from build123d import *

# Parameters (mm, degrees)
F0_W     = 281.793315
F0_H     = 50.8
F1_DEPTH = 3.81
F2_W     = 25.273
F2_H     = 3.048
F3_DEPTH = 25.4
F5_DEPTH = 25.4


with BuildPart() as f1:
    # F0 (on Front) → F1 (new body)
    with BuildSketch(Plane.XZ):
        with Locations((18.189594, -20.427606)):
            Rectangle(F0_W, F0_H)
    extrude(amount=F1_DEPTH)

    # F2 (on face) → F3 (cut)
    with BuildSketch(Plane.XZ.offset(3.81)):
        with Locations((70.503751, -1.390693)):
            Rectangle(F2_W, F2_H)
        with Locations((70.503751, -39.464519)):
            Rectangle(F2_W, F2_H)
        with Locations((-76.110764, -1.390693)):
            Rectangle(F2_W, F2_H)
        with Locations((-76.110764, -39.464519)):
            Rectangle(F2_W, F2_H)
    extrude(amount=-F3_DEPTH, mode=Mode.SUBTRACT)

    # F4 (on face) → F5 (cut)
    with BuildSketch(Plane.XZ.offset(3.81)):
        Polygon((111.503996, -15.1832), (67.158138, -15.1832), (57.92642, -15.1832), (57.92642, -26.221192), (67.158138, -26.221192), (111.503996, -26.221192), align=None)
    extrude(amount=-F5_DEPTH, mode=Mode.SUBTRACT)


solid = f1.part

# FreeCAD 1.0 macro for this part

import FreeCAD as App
import Part
import Sketcher
from FreeCAD import Vector
Q = App.Units.Quantity


def add_polygon(sketch, points):
    """Adds a closed chain of lines whose ends are joined by coincident constraints."""
    first, n = sketch.GeometryCount, len(points)
    for a, b in zip(points, points[1:] + points[:1]):
        sketch.addGeometry(Part.LineSegment(App.Vector(*a, 0), App.Vector(*b, 0)), False)
    for i in range(n):
        sketch.addConstraint(Sketcher.Constraint("Coincident", first + i, 2, first + (i + 1) % n, 1))

doc = App.newDocument("Part")
params = doc.addObject("Spreadsheet::Sheet", "Params")
for row, (alias, value) in enumerate([
    ("sketch1_height", "2 in"),
    ("pad1_length", "0.15 in"),
    ("sketch2_height", "0.12 in"),
    ("sketch2_width", "0.995 in"),
    ("pocket1_length", "1 in"),
    ("pocket2_length", "1 in"),
], start=1):
    params.set(f"A{row}", alias)
    params.set(f"B{row}", "=" + value)
    params.setAlias(f"B{row}", alias)

body = doc.addObject("PartDesign::Body", "Body")

# Sketch on XZ plane
sketch1 = doc.addObject("Sketcher::SketchObject", "Sketch")
body.addObject(sketch1)
sketch1.AttachmentSupport = (doc.XZ_Plane, [""])
sketch1.MapMode = "FlatFace"
add_polygon(sketch1, [(-123, 5), (-123, -46), (159, -46), (159, 5)])  # lines 0-3
sketch1.addConstraint([
    Sketcher.Constraint("Vertical", 0),
    Sketcher.Constraint("Horizontal", 1),
    Sketcher.Constraint("Vertical", 2),
    Sketcher.Constraint("Horizontal", 3),
    Sketcher.Constraint("DistanceY", 0, 2, 0, 1, Q("2 in")),
    Sketcher.Constraint("DistanceX", 1, 1, 1, 2, Q("281.793315 mm")),
    Sketcher.Constraint("DistanceX", -1, 1, 1, 2, Q("159.086252 mm")),
    Sketcher.Constraint("DistanceY", 0, 2, -1, 1, Q("45.827606 mm")),
])
sketch1.setExpression("Constraints[8]", "Params.sketch1_height")
pad1 = doc.addObject("PartDesign::Pad", "Pad")
body.addObject(pad1)
pad1.Profile = sketch1
pad1.setExpression("Length", "Params.pad1_length")

# Sketch on XZ plane
sketch2 = doc.addObject("Sketcher::SketchObject", "Sketch001")
body.addObject(sketch2)
sketch2.AttachmentSupport = (doc.XZ_Plane, [""])
sketch2.MapMode = "FlatFace"
sketch2.AttachmentOffset = App.Placement(Vector(0, 0, 0.15 * 25.4), App.Rotation())
add_polygon(sketch2, [(57.9, 0.1), (57.9, -2.9), (83.1, -2.9), (83.1, 0.1)])  # lines 0-3
add_polygon(sketch2, [(57.9, -37.9), (57.9, -41), (83.1, -41), (83.1, -37.9)])  # lines 4-7
add_polygon(sketch2, [(-88.7, 0.1), (-88.7, -2.9), (-63.5, -2.9), (-63.5, 0.1)])  # lines 8-11
add_polygon(sketch2, [(-88.7, -37.9), (-88.7, -41), (-63.5, -41), (-63.5, -37.9)])  # lines 12-15
sketch2.addConstraint([
    Sketcher.Constraint("Vertical", 0),
    Sketcher.Constraint("Horizontal", 1),
    Sketcher.Constraint("Vertical", 2),
    Sketcher.Constraint("Horizontal", 3),
    Sketcher.Constraint("Vertical", 4),
    Sketcher.Constraint("Horizontal", 5),
    Sketcher.Constraint("Vertical", 6),
    Sketcher.Constraint("Horizontal", 7),
    Sketcher.Constraint("Vertical", 8),
    Sketcher.Constraint("Horizontal", 9),
    Sketcher.Constraint("Vertical", 10),
    Sketcher.Constraint("Horizontal", 11),
    Sketcher.Constraint("Vertical", 12),
    Sketcher.Constraint("Horizontal", 13),
    Sketcher.Constraint("Vertical", 14),
    Sketcher.Constraint("Horizontal", 15),
    Sketcher.Constraint("Horizontal", 1, 2, 8, 2),
    Sketcher.Constraint("Horizontal", 3, 2, 10, 2),
    Sketcher.Constraint("Horizontal", 5, 2, 12, 2),
    Sketcher.Constraint("Horizontal", 7, 2, 14, 2),
    Sketcher.Constraint("Vertical", 3, 2, 4, 2),
    Sketcher.Constraint("Vertical", 2, 2, 5, 2),
    Sketcher.Constraint("Vertical", 11, 2, 12, 2),
    Sketcher.Constraint("Vertical", 10, 2, 13, 2),
    Sketcher.Constraint("Equal", 7, 9),
    Sketcher.Constraint("Equal", 2, 4),
    Sketcher.Constraint("DistanceY", 0, 2, 0, 1, Q("0.12 in")),
    Sketcher.Constraint("DistanceX", 1, 1, 1, 2, Q("0.995 in")),
    Sketcher.Constraint("DistanceX", -1, 1, 0, 2, Q("57.867251 mm")),
    Sketcher.Constraint("DistanceY", 4, 2, -1, 1, Q("40.988519 mm")),
    Sketcher.Constraint("DistanceY", 0, 2, -1, 1, Q("2.914693 mm")),
    Sketcher.Constraint("DistanceX", 8, 2, -1, 1, Q("88.747264 mm")),
])
sketch2.setExpression("Constraints[42]", "Params.sketch2_height")
sketch2.setExpression("Constraints[43]", "Params.sketch2_width")
pocket1 = doc.addObject("PartDesign::Pocket", "Pocket")
body.addObject(pocket1)
pocket1.Profile = sketch2
pocket1.setExpression("Length", "Params.pocket1_length")

# Sketch on XZ plane
sketch3 = doc.addObject("Sketcher::SketchObject", "Sketch002")
body.addObject(sketch3)
sketch3.AttachmentSupport = (doc.XZ_Plane, [""])
sketch3.MapMode = "FlatFace"
sketch3.AttachmentOffset = App.Placement(Vector(0, 0, 0.15 * 25.4), App.Rotation())
add_polygon(sketch3, [(112, -15), (58, -15), (58, -26), (112, -26)])  # lines 0-3
sketch3.addConstraint([
    Sketcher.Constraint("Horizontal", 0),
    Sketcher.Constraint("Vertical", 1),
    Sketcher.Constraint("Horizontal", 2),
    Sketcher.Constraint("Vertical", 3),
    Sketcher.Constraint("DistanceY", 1, 2, 1, 1, Q("11.037992 mm")),
    Sketcher.Constraint("DistanceY", 0, 2, -1, 1, Q("15.1832 mm")),
    Sketcher.Constraint("DistanceX", 0, 2, 0, 1, Q("53.577576 mm")),
    Sketcher.Constraint("DistanceX", -1, 1, 0, 2, Q("57.92642 mm")),
])
pocket2 = doc.addObject("PartDesign::Pocket", "Pocket001")
body.addObject(pocket2)
pocket2.Profile = sketch3
pocket2.setExpression("Length", "Params.pocket2_length")

doc.recompute()
